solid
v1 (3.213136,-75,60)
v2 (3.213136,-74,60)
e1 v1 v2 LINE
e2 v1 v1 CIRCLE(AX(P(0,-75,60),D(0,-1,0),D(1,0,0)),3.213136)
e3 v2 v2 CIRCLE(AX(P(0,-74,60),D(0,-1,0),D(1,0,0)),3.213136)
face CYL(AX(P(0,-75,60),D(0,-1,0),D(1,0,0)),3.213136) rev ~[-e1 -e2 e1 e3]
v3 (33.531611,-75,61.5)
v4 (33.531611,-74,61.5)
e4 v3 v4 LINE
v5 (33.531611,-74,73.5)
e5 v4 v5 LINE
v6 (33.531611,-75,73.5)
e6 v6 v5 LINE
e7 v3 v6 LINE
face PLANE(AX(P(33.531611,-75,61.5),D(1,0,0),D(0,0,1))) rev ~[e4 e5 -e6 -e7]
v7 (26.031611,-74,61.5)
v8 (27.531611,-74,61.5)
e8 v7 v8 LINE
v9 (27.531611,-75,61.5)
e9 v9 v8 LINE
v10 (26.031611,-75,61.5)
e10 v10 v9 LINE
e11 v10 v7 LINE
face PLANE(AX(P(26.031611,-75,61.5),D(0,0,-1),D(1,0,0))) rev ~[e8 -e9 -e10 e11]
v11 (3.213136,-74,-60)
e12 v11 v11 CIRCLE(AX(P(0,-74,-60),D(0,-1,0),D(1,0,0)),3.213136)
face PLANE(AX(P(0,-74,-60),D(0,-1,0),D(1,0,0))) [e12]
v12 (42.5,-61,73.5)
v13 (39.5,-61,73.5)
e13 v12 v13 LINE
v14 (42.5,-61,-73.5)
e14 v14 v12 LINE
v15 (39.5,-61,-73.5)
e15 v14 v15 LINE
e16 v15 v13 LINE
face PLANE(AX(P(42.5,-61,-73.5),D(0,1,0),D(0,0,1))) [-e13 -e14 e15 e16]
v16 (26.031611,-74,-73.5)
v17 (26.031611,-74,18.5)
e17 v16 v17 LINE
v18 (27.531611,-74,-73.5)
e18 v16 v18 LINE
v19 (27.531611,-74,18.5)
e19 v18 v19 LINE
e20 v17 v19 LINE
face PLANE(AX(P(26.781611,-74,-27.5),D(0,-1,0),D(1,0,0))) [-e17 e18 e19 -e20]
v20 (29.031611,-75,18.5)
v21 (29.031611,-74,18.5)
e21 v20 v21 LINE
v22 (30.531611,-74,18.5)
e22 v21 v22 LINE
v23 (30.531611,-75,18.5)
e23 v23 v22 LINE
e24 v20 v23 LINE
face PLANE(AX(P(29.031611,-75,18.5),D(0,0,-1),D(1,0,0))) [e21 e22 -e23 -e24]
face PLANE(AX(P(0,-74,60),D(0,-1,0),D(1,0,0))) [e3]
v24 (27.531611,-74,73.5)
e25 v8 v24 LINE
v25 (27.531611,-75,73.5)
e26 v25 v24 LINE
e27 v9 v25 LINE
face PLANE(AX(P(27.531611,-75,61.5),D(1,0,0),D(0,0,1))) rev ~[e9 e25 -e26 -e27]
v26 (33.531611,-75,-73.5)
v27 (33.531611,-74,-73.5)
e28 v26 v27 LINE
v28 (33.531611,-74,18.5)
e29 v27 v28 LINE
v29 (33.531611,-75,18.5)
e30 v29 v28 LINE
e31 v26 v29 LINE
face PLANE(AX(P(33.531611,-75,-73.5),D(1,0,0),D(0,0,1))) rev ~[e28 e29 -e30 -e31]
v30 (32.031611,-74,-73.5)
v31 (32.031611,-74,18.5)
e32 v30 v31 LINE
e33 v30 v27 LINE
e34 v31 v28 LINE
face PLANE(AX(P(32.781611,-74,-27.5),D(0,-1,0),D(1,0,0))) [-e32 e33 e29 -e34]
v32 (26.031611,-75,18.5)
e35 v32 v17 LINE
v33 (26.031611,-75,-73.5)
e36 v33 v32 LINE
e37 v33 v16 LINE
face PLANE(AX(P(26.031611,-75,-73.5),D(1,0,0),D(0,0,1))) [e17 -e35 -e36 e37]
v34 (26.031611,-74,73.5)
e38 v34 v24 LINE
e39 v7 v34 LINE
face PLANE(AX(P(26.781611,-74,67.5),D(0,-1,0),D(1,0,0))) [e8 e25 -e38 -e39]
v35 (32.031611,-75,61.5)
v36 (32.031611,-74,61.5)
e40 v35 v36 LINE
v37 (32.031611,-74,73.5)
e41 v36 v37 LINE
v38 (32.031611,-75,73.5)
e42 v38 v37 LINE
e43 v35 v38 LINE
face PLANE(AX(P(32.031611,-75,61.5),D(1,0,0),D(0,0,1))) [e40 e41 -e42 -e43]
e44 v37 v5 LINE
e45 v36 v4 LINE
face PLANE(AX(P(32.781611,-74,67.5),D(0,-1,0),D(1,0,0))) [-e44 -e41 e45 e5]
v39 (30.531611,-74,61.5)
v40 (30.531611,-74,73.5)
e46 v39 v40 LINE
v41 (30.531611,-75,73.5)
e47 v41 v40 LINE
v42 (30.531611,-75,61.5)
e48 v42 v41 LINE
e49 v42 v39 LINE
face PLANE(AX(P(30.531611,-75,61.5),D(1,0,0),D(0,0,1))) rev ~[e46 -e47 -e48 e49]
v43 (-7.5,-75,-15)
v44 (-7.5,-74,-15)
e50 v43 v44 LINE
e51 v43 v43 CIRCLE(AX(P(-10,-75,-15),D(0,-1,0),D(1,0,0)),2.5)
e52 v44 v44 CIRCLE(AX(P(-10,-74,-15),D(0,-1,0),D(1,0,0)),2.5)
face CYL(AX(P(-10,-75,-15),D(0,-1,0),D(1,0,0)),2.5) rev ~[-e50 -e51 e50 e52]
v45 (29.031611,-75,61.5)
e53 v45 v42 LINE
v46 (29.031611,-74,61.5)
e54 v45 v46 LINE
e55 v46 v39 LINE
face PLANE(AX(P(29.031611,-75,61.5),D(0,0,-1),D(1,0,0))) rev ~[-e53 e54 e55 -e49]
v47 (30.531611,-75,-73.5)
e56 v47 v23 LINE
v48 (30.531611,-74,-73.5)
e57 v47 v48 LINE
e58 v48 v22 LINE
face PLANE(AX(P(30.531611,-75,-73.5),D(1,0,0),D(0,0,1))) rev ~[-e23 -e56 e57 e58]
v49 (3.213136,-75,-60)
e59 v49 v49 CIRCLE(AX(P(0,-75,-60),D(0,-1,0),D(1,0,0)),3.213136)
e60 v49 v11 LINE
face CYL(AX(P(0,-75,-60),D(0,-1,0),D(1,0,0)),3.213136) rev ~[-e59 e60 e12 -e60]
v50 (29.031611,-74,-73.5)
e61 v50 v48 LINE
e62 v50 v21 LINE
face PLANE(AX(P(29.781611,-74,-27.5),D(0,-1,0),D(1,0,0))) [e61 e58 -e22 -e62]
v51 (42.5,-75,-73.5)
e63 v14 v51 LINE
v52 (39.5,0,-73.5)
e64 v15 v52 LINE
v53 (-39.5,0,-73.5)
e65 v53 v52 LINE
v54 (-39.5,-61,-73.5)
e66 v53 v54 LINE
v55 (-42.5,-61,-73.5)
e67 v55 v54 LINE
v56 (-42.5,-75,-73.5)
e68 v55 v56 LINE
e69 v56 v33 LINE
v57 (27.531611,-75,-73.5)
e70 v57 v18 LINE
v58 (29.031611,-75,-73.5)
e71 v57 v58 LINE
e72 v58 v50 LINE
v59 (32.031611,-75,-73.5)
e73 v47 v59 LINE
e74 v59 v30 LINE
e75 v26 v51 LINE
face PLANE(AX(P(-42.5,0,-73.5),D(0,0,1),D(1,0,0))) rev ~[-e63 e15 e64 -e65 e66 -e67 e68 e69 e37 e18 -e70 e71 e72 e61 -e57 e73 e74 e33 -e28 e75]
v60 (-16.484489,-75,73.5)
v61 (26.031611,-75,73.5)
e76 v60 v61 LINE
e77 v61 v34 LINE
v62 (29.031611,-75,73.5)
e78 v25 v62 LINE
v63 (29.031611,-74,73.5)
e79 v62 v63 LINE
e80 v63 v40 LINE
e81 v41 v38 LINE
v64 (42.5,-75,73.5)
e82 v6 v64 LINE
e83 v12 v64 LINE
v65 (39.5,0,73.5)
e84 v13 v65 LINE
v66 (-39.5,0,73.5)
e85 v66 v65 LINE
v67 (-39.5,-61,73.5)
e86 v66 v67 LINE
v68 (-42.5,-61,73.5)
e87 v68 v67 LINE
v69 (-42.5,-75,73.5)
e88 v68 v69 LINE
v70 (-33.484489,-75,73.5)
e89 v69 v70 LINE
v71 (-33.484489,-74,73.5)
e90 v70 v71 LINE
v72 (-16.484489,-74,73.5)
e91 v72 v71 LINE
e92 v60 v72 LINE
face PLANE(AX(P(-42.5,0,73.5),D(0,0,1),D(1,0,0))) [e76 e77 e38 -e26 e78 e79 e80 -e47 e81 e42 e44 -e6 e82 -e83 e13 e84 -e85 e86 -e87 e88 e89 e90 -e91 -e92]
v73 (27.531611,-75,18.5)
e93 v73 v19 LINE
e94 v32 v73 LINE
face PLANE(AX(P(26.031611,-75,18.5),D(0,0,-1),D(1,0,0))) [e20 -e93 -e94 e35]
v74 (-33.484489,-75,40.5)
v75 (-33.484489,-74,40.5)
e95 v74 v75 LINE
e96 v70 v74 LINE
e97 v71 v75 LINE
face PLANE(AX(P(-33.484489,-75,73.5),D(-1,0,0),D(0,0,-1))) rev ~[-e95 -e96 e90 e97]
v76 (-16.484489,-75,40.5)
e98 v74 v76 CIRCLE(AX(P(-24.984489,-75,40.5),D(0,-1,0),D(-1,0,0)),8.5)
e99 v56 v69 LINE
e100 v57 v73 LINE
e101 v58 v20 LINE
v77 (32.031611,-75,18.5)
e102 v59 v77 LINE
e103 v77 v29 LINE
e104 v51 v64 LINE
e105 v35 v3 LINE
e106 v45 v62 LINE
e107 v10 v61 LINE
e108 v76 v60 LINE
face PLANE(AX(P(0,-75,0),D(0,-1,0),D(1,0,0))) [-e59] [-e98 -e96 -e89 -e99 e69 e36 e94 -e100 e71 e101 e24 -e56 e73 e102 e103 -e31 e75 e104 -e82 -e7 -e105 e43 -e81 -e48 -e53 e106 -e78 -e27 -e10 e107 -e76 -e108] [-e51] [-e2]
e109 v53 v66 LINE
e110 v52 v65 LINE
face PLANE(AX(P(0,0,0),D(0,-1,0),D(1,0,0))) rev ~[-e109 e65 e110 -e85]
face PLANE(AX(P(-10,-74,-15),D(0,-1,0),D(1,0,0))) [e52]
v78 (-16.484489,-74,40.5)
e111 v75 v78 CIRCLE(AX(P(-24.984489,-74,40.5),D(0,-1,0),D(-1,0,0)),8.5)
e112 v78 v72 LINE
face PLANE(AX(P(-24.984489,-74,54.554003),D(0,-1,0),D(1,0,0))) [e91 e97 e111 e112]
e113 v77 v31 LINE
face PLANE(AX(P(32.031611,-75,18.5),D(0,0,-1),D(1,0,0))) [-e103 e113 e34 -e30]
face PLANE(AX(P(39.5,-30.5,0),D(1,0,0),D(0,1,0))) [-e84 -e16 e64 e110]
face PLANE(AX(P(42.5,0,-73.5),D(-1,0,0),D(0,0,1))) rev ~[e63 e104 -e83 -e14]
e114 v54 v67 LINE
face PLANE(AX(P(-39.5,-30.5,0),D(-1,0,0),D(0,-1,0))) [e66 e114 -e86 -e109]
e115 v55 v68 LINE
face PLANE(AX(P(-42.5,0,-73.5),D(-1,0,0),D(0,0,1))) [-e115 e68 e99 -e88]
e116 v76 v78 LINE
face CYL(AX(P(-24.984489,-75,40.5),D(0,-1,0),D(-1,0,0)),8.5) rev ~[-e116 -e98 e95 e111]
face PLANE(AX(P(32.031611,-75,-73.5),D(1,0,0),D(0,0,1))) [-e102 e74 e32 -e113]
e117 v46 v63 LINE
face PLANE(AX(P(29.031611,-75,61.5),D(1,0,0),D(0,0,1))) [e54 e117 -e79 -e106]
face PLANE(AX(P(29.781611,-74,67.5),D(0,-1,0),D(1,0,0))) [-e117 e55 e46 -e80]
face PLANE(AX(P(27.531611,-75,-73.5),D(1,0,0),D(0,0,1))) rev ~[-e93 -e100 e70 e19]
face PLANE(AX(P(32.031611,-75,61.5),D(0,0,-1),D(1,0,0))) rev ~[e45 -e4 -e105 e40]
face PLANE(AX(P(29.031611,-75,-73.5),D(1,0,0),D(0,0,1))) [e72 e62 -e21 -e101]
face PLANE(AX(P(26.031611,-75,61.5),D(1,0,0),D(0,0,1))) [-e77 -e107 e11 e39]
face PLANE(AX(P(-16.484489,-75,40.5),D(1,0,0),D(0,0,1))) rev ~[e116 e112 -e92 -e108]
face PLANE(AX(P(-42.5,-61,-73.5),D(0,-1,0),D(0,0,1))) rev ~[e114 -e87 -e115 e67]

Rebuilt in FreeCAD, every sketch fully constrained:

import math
import FreeCAD as App
import Part
import Sketcher
Q = App.Units.Quantity

doc = App.newDocument("Part")
params = doc.addObject("Spreadsheet::Sheet", "Params")
for row, (alias, value) in enumerate([
    ("sketch1_width", "85 mm"),
    ("sketch1_height", "147 mm"),
    ("pad1_length", "75 mm"),
    ("sketch2_diameter", "5 mm"),
    ("sketch2_radius", "8.5 mm"),
    ("sketch2_height", "92 mm"),
    ("sketch2_height2", "33 mm"),
    ("sketch2_height3", "12 mm"),
    ("pocket1_length", "1 mm"),
    ("sketch3_width", "61 mm"),
    ("sketch3_height", "147 mm"),
    ("pocket2_length", "3 mm"),
    ("sketch4_width", "61 mm"),
    ("sketch4_height", "147 mm"),
    ("pocket3_length", "3 mm"),
], start=1):
    params.set(f"A{row}", alias)
    params.set(f"B{row}", "=" + value)
    params.setAlias(f"B{row}", alias)

body = doc.addObject("PartDesign::Body", "Body")

sketch1 = body.newObject("Sketcher::SketchObject", "Sketch")
sketch1.AttachmentSupport = (doc.getObject("XZ_Plane"), [""])
sketch1.MapMode = "FlatFace"
sketch1.addGeometry(Part.LineSegment(App.Vector(-42, 74, 0), App.Vector(-42, -74, 0)), False)
sketch1.addGeometry(Part.LineSegment(App.Vector(-42, -74, 0), App.Vector(42, -74, 0)), False)
sketch1.addGeometry(Part.LineSegment(App.Vector(42, -74, 0), App.Vector(42, 74, 0)), False)
sketch1.addGeometry(Part.LineSegment(App.Vector(42, 74, 0), App.Vector(-42, 74, 0)), False)
sketch1.addConstraint(Sketcher.Constraint("Coincident", 0, 2, 1, 1))
sketch1.addConstraint(Sketcher.Constraint("Coincident", 1, 2, 2, 1))
sketch1.addConstraint(Sketcher.Constraint("Coincident", 2, 2, 3, 1))
sketch1.addConstraint(Sketcher.Constraint("Coincident", 3, 2, 0, 1))
sketch1.addConstraint(Sketcher.Constraint("Vertical", 0))
sketch1.addConstraint(Sketcher.Constraint("Horizontal", 1))
sketch1.addConstraint(Sketcher.Constraint("Vertical", 2))
sketch1.addConstraint(Sketcher.Constraint("Horizontal", 3))
sketch1.addConstraint(Sketcher.Constraint("Symmetric", 0, 2, 2, 2, -1, 1))
sketch1.addConstraint(Sketcher.Constraint("DistanceX", 1, 1, 1, 2, Q("85 mm")))
sketch1.addConstraint(Sketcher.Constraint("DistanceY", 0, 2, 0, 1, Q("147 mm")))
sketch1.setExpression("Constraints[9]", "Params.sketch1_width")
sketch1.setExpression("Constraints[10]", "Params.sketch1_height")
pad1 = body.newObject("PartDesign::Pad", "Pad")
pad1.Profile = sketch1
pad1.setExpression("Length", "Params.pad1_length")

sketch2 = body.newObject("Sketcher::SketchObject", "Sketch001")
sketch2.AttachmentSupport = (doc.getObject("XZ_Plane"), [""])
sketch2.MapMode = "FlatFace"
sketch2.AttachmentOffset = App.Placement(App.Vector(0, 0, 75), App.Rotation())
sketch2.addGeometry(Part.LineSegment(App.Vector(26, 18.5, 0), App.Vector(26, -73.5, 0)), False)
sketch2.addGeometry(Part.LineSegment(App.Vector(26, -73.5, 0), App.Vector(27.5, -73.5, 0)), False)
sketch2.addGeometry(Part.LineSegment(App.Vector(27.5, -73.5, 0), App.Vector(27.5, 18.5, 0)), False)
sketch2.addGeometry(Part.LineSegment(App.Vector(27.5, 18.5, 0), App.Vector(26, 18.5, 0)), False)
sketch2.addGeometry(Part.LineSegment(App.Vector(29, 18.5, 0), App.Vector(29, -73.5, 0)), False)
sketch2.addGeometry(Part.LineSegment(App.Vector(29, -73.5, 0), App.Vector(30.5, -73.5, 0)), False)
sketch2.addGeometry(Part.LineSegment(App.Vector(30.5, -73.5, 0), App.Vector(30.5, 18.5, 0)), False)
sketch2.addGeometry(Part.LineSegment(App.Vector(30.5, 18.5, 0), App.Vector(29, 18.5, 0)), False)
sketch2.addGeometry(Part.LineSegment(App.Vector(32, 18.5, 0), App.Vector(32, -73.5, 0)), False)
sketch2.addGeometry(Part.LineSegment(App.Vector(32, -73.5, 0), App.Vector(33.5, -73.5, 0)), False)
sketch2.addGeometry(Part.LineSegment(App.Vector(33.5, -73.5, 0), App.Vector(33.5, 18.5, 0)), False)
sketch2.addGeometry(Part.LineSegment(App.Vector(33.5, 18.5, 0), App.Vector(32, 18.5, 0)), False)
sketch2.addGeometry(Part.Circle(App.Vector(0, -60, 0), App.Vector(0, 0, 1), 3.2), False)
sketch2.addGeometry(Part.Circle(App.Vector(-10, -15, 0), App.Vector(0, 0, 1), 2.5), False)
sketch2.addGeometry(Part.Circle(App.Vector(0, 60, 0), App.Vector(0, 0, 1), 3.2), False)
sketch2.addGeometry(Part.LineSegment(App.Vector(-16.5, 73.5, 0), App.Vector(-33.5, 73.5, 0)), False)
sketch2.addGeometry(Part.LineSegment(App.Vector(-33.5, 73.5, 0), App.Vector(-33.5, 40.5, 0)), False)
sketch2.addGeometry(Part.ArcOfCircle(Part.Circle(App.Vector(-25, 40.5, 0), App.Vector(0, 0, 1), 8.5), math.radians(180), math.radians(360)), False)
sketch2.addGeometry(Part.LineSegment(App.Vector(-16.5, 40.5, 0), App.Vector(-16.5, 73.5, 0)), False)
sketch2.addGeometry(Part.LineSegment(App.Vector(26, 73.5, 0), App.Vector(26, 61.5, 0)), False)
sketch2.addGeometry(Part.LineSegment(App.Vector(26, 61.5, 0), App.Vector(27.5, 61.5, 0)), False)
sketch2.addGeometry(Part.LineSegment(App.Vector(27.5, 61.5, 0), App.Vector(27.5, 73.5, 0)), False)
sketch2.addGeometry(Part.LineSegment(App.Vector(27.5, 73.5, 0), App.Vector(26, 73.5, 0)), False)
sketch2.addGeometry(Part.LineSegment(App.Vector(29, 73.5, 0), App.Vector(29, 61.5, 0)), False)
sketch2.addGeometry(Part.LineSegment(App.Vector(29, 61.5, 0), App.Vector(30.5, 61.5, 0)), False)
sketch2.addGeometry(Part.LineSegment(App.Vector(30.5, 61.5, 0), App.Vector(30.5, 73.5, 0)), False)
sketch2.addGeometry(Part.LineSegment(App.Vector(30.5, 73.5, 0), App.Vector(29, 73.5, 0)), False)
sketch2.addGeometry(Part.LineSegment(App.Vector(32, 73.5, 0), App.Vector(32, 61.5, 0)), False)
sketch2.addGeometry(Part.LineSegment(App.Vector(32, 61.5, 0), App.Vector(33.5, 61.5, 0)), False)
sketch2.addGeometry(Part.LineSegment(App.Vector(33.5, 61.5, 0), App.Vector(33.5, 73.5, 0)), False)
sketch2.addGeometry(Part.LineSegment(App.Vector(33.5, 73.5, 0), App.Vector(32, 73.5, 0)), False)
sketch2.addConstraint(Sketcher.Constraint("Coincident", 0, 2, 1, 1))
sketch2.addConstraint(Sketcher.Constraint("Coincident", 1, 2, 2, 1))
sketch2.addConstraint(Sketcher.Constraint("Coincident", 2, 2, 3, 1))
sketch2.addConstraint(Sketcher.Constraint("Coincident", 3, 2, 0, 1))
sketch2.addConstraint(Sketcher.Constraint("Coincident", 4, 2, 5, 1))
sketch2.addConstraint(Sketcher.Constraint("Coincident", 5, 2, 6, 1))
sketch2.addConstraint(Sketcher.Constraint("Coincident", 6, 2, 7, 1))
sketch2.addConstraint(Sketcher.Constraint("Coincident", 7, 2, 4, 1))
sketch2.addConstraint(Sketcher.Constraint("Coincident", 8, 2, 9, 1))
sketch2.addConstraint(Sketcher.Constraint("Coincident", 9, 2, 10, 1))
sketch2.addConstraint(Sketcher.Constraint("Coincident", 10, 2, 11, 1))
sketch2.addConstraint(Sketcher.Constraint("Coincident", 11, 2, 8, 1))
sketch2.addConstraint(Sketcher.Constraint("Coincident", 15, 2, 16, 1))
sketch2.addConstraint(Sketcher.Constraint("Tangent", 16, 2, 17, 1))
sketch2.addConstraint(Sketcher.Constraint("Tangent", 17, 2, 18, 1))
sketch2.addConstraint(Sketcher.Constraint("Coincident", 18, 2, 15, 1))
sketch2.addConstraint(Sketcher.Constraint("Coincident", 19, 2, 20, 1))
sketch2.addConstraint(Sketcher.Constraint("Coincident", 20, 2, 21, 1))
sketch2.addConstraint(Sketcher.Constraint("Coincident", 21, 2, 22, 1))
sketch2.addConstraint(Sketcher.Constraint("Coincident", 22, 2, 19, 1))
sketch2.addConstraint(Sketcher.Constraint("Coincident", 23, 2, 24, 1))
sketch2.addConstraint(Sketcher.Constraint("Coincident", 24, 2, 25, 1))
sketch2.addConstraint(Sketcher.Constraint("Coincident", 25, 2, 26, 1))
sketch2.addConstraint(Sketcher.Constraint("Coincident", 26, 2, 23, 1))
sketch2.addConstraint(Sketcher.Constraint("Coincident", 27, 2, 28, 1))
sketch2.addConstraint(Sketcher.Constraint("Coincident", 28, 2, 29, 1))
sketch2.addConstraint(Sketcher.Constraint("Coincident", 29, 2, 30, 1))
sketch2.addConstraint(Sketcher.Constraint("Coincident", 30, 2, 27, 1))
sketch2.addConstraint(Sketcher.Constraint("Vertical", 0))
sketch2.addConstraint(Sketcher.Constraint("Horizontal", 1))
sketch2.addConstraint(Sketcher.Constraint("Vertical", 2))
sketch2.addConstraint(Sketcher.Constraint("Horizontal", 3))
sketch2.addConstraint(Sketcher.Constraint("Vertical", 4))
sketch2.addConstraint(Sketcher.Constraint("Horizontal", 5))
sketch2.addConstraint(Sketcher.Constraint("Vertical", 6))
sketch2.addConstraint(Sketcher.Constraint("Horizontal", 7))
sketch2.addConstraint(Sketcher.Constraint("Vertical", 8))
sketch2.addConstraint(Sketcher.Constraint("Horizontal", 9))
sketch2.addConstraint(Sketcher.Constraint("Vertical", 10))
sketch2.addConstraint(Sketcher.Constraint("Horizontal", 11))
sketch2.addConstraint(Sketcher.Constraint("Horizontal", 15))
sketch2.addConstraint(Sketcher.Constraint("Vertical", 16))
sketch2.addConstraint(Sketcher.Constraint("Vertical", 18))
sketch2.addConstraint(Sketcher.Constraint("Vertical", 19))
sketch2.addConstraint(Sketcher.Constraint("Horizontal", 20))
sketch2.addConstraint(Sketcher.Constraint("Vertical", 21))
sketch2.addConstraint(Sketcher.Constraint("Horizontal", 22))
sketch2.addConstraint(Sketcher.Constraint("Vertical", 23))
sketch2.addConstraint(Sketcher.Constraint("Horizontal", 24))
sketch2.addConstraint(Sketcher.Constraint("Vertical", 25))
sketch2.addConstraint(Sketcher.Constraint("Horizontal", 26))
sketch2.addConstraint(Sketcher.Constraint("Vertical", 27))
sketch2.addConstraint(Sketcher.Constraint("Horizontal", 28))
sketch2.addConstraint(Sketcher.Constraint("Vertical", 29))
sketch2.addConstraint(Sketcher.Constraint("Horizontal", 30))
sketch2.addConstraint(Sketcher.Constraint("Equal", 12, 14))
sketch2.addConstraint(Sketcher.Constraint("Symmetric", 12, 3, 14, 3, -1, 1))
sketch2.addConstraint(Sketcher.Constraint("Symmetric", 1, 2, 21, 2, -1))
sketch2.addConstraint(Sketcher.Constraint("Symmetric", 5, 2, 25, 2, -1))
sketch2.addConstraint(Sketcher.Constraint("Symmetric", 9, 2, 29, 2, -1))
sketch2.addConstraint(Sketcher.Constraint("PointOnObject", 12, 3, -2))
sketch2.addConstraint(Sketcher.Constraint("Horizontal", 1, 2, 4, 2))
sketch2.addConstraint(Sketcher.Constraint("Horizontal", 3, 2, 6, 2))
sketch2.addConstraint(Sketcher.Constraint("Horizontal", 5, 2, 8, 2))
sketch2.addConstraint(Sketcher.Constraint("Horizontal", 7, 2, 10, 2))
sketch2.addConstraint(Sketcher.Constraint("Horizontal", 18, 2, 21, 2))
sketch2.addConstraint(Sketcher.Constraint("Horizontal", 20, 2, 23, 2))
sketch2.addConstraint(Sketcher.Constraint("Horizontal", 24, 2, 27, 2))
sketch2.addConstraint(Sketcher.Constraint("Vertical", 3, 2, 19, 2))
sketch2.addConstraint(Sketcher.Constraint("Vertical", 7, 2, 23, 2))
sketch2.addConstraint(Sketcher.Constraint("Vertical", 11, 2, 27, 2))
sketch2.addConstraint(Sketcher.Constraint("Equal", 3, 5))
sketch2.addConstraint(Sketcher.Constraint("Equal", 7, 9))
sketch2.addConstraint(Sketcher.Constraint("Diameter", 13, Q("5 mm")))
sketch2.addConstraint(Sketcher.Constraint("Radius", 17, Q("8.5 mm")))
sketch2.addConstraint(Sketcher.Constraint("DistanceY", 0, 2, 0, 1, Q("92 mm")))
sketch2.addConstraint(Sketcher.Constraint("DistanceY", 16, 2, 16, 1, Q("33 mm")))
sketch2.addConstraint(Sketcher.Constraint("DistanceY", 19, 2, 19, 1, Q("12 mm")))
sketch2.addConstraint(Sketcher.Constraint("DistanceX", 1, 1, 1, 2, Q("1.5 mm")))
sketch2.addConstraint(Sketcher.Constraint("DistanceY", 12, 3, -1, 1, Q("60 mm")))
sketch2.addConstraint(Sketcher.Constraint("DistanceX", 13, 3, -1, 1, Q("10 mm")))
sketch2.addConstraint(Sketcher.Constraint("DistanceY", 13, 3, -1, 1, Q("15 mm")))
sketch2.addConstraint(Sketcher.Constraint("DistanceY", 0, 2, 17, 3, Q("114 mm")))
sketch2.addConstraint(Sketcher.Constraint("DistanceX", 0, 2, 4, 2, Q("3 mm")))
sketch2.addConstraint(Sketcher.Constraint("DistanceX", 4, 2, 8, 2, Q("3 mm")))
sketch2.addConstraint(Sketcher.Constraint("Diameter", 12, Q("6.426272 mm")))
sketch2.addConstraint(Sketcher.Constraint("DistanceX", 17, 3, 0, 2, Q("51.0161 mm")))
sketch2.addConstraint(Sketcher.Constraint("DistanceX", 17, 3, -1, 1, Q("24.984489 mm")))
sketch2.setExpression("Constraints[73]", "Params.sketch2_diameter")
sketch2.setExpression("Constraints[74]", "Params.sketch2_radius")
sketch2.setExpression("Constraints[75]", "Params.sketch2_height")
sketch2.setExpression("Constraints[76]", "Params.sketch2_height2")
sketch2.setExpression("Constraints[77]", "Params.sketch2_height3")
pocket1 = body.newObject("PartDesign::Pocket", "Pocket")
pocket1.Profile = sketch2
pocket1.setExpression("Length", "Params.pocket1_length")

sketch3 = body.newObject("Sketcher::SketchObject", "Sketch002")
sketch3.AttachmentSupport = (doc.getObject("YZ_Plane"), [""])
sketch3.MapMode = "FlatFace"
sketch3.AttachmentOffset = App.Placement(App.Vector(0, 0, -42.5), App.Rotation())
sketch3.addGeometry(Part.LineSegment(App.Vector(0, 74, 0), App.Vector(0, -74, 0)), False)
sketch3.addGeometry(Part.LineSegment(App.Vector(0, -74, 0), App.Vector(-61, -74, 0)), False)
sketch3.addGeometry(Part.LineSegment(App.Vector(-61, -74, 0), App.Vector(-61, 74, 0)), False)
sketch3.addGeometry(Part.LineSegment(App.Vector(-61, 74, 0), App.Vector(0, 74, 0)), False)
sketch3.addConstraint(Sketcher.Constraint("Coincident", 0, 2, 1, 1))
sketch3.addConstraint(Sketcher.Constraint("Coincident", 1, 2, 2, 1))
sketch3.addConstraint(Sketcher.Constraint("Coincident", 2, 2, 3, 1))
sketch3.addConstraint(Sketcher.Constraint("Coincident", 3, 2, 0, 1))
sketch3.addConstraint(Sketcher.Constraint("Vertical", 0))
sketch3.addConstraint(Sketcher.Constraint("Horizontal", 1))
sketch3.addConstraint(Sketcher.Constraint("Vertical", 2))
sketch3.addConstraint(Sketcher.Constraint("Horizontal", 3))
sketch3.addConstraint(Sketcher.Constraint("Symmetric", 0, 2, 3, 2, -1, 1))
sketch3.addConstraint(Sketcher.Constraint("DistanceX", 1, 2, 1, 1, Q("61 mm")))
sketch3.addConstraint(Sketcher.Constraint("DistanceY", 0, 2, 0, 1, Q("147 mm")))
sketch3.setExpression("Constraints[9]", "Params.sketch3_width")
sketch3.setExpression("Constraints[10]", "Params.sketch3_height")
pocket2 = body.newObject("PartDesign::Pocket", "Pocket001")
pocket2.Profile = sketch3
pocket2.setExpression("Length", "Params.pocket2_length")
pocket2.Reversed = True

sketch4 = body.newObject("Sketcher::SketchObject", "Sketch003")
sketch4.AttachmentSupport = (doc.getObject("YZ_Plane"), [""])
sketch4.MapMode = "FlatFace"
sketch4.AttachmentOffset = App.Placement(App.Vector(0, 0, 42.5), App.Rotation())
sketch4.addGeometry(Part.LineSegment(App.Vector(-61, 74, 0), App.Vector(-61, -74, 0)), False)
sketch4.addGeometry(Part.LineSegment(App.Vector(-61, -74, 0), App.Vector(0, -74, 0)), False)
sketch4.addGeometry(Part.LineSegment(App.Vector(0, -74, 0), App.Vector(0, 74, 0)), False)
sketch4.addGeometry(Part.LineSegment(App.Vector(0, 74, 0), App.Vector(-61, 74, 0)), False)
sketch4.addConstraint(Sketcher.Constraint("Coincident", 0, 2, 1, 1))
sketch4.addConstraint(Sketcher.Constraint("Coincident", 1, 2, 2, 1))
sketch4.addConstraint(Sketcher.Constraint("Coincident", 2, 2, 3, 1))
sketch4.addConstraint(Sketcher.Constraint("Coincident", 3, 2, 0, 1))
sketch4.addConstraint(Sketcher.Constraint("Vertical", 0))
sketch4.addConstraint(Sketcher.Constraint("Horizontal", 1))
sketch4.addConstraint(Sketcher.Constraint("Vertical", 2))
sketch4.addConstraint(Sketcher.Constraint("Horizontal", 3))
sketch4.addConstraint(Sketcher.Constraint("Symmetric", 1, 2, 2, 2, -1, 1))
sketch4.addConstraint(Sketcher.Constraint("DistanceX", 1, 1, 1, 2, Q("61 mm")))
sketch4.addConstraint(Sketcher.Constraint("DistanceY", 0, 2, 0, 1, Q("147 mm")))
sketch4.setExpression("Constraints[9]", "Params.sketch4_width")
sketch4.setExpression("Constraints[10]", "Params.sketch4_height")
pocket3 = body.newObject("PartDesign::Pocket", "Pocket002")
pocket3.Profile = sketch4
pocket3.setExpression("Length", "Params.pocket3_length")

doc.recompute()
